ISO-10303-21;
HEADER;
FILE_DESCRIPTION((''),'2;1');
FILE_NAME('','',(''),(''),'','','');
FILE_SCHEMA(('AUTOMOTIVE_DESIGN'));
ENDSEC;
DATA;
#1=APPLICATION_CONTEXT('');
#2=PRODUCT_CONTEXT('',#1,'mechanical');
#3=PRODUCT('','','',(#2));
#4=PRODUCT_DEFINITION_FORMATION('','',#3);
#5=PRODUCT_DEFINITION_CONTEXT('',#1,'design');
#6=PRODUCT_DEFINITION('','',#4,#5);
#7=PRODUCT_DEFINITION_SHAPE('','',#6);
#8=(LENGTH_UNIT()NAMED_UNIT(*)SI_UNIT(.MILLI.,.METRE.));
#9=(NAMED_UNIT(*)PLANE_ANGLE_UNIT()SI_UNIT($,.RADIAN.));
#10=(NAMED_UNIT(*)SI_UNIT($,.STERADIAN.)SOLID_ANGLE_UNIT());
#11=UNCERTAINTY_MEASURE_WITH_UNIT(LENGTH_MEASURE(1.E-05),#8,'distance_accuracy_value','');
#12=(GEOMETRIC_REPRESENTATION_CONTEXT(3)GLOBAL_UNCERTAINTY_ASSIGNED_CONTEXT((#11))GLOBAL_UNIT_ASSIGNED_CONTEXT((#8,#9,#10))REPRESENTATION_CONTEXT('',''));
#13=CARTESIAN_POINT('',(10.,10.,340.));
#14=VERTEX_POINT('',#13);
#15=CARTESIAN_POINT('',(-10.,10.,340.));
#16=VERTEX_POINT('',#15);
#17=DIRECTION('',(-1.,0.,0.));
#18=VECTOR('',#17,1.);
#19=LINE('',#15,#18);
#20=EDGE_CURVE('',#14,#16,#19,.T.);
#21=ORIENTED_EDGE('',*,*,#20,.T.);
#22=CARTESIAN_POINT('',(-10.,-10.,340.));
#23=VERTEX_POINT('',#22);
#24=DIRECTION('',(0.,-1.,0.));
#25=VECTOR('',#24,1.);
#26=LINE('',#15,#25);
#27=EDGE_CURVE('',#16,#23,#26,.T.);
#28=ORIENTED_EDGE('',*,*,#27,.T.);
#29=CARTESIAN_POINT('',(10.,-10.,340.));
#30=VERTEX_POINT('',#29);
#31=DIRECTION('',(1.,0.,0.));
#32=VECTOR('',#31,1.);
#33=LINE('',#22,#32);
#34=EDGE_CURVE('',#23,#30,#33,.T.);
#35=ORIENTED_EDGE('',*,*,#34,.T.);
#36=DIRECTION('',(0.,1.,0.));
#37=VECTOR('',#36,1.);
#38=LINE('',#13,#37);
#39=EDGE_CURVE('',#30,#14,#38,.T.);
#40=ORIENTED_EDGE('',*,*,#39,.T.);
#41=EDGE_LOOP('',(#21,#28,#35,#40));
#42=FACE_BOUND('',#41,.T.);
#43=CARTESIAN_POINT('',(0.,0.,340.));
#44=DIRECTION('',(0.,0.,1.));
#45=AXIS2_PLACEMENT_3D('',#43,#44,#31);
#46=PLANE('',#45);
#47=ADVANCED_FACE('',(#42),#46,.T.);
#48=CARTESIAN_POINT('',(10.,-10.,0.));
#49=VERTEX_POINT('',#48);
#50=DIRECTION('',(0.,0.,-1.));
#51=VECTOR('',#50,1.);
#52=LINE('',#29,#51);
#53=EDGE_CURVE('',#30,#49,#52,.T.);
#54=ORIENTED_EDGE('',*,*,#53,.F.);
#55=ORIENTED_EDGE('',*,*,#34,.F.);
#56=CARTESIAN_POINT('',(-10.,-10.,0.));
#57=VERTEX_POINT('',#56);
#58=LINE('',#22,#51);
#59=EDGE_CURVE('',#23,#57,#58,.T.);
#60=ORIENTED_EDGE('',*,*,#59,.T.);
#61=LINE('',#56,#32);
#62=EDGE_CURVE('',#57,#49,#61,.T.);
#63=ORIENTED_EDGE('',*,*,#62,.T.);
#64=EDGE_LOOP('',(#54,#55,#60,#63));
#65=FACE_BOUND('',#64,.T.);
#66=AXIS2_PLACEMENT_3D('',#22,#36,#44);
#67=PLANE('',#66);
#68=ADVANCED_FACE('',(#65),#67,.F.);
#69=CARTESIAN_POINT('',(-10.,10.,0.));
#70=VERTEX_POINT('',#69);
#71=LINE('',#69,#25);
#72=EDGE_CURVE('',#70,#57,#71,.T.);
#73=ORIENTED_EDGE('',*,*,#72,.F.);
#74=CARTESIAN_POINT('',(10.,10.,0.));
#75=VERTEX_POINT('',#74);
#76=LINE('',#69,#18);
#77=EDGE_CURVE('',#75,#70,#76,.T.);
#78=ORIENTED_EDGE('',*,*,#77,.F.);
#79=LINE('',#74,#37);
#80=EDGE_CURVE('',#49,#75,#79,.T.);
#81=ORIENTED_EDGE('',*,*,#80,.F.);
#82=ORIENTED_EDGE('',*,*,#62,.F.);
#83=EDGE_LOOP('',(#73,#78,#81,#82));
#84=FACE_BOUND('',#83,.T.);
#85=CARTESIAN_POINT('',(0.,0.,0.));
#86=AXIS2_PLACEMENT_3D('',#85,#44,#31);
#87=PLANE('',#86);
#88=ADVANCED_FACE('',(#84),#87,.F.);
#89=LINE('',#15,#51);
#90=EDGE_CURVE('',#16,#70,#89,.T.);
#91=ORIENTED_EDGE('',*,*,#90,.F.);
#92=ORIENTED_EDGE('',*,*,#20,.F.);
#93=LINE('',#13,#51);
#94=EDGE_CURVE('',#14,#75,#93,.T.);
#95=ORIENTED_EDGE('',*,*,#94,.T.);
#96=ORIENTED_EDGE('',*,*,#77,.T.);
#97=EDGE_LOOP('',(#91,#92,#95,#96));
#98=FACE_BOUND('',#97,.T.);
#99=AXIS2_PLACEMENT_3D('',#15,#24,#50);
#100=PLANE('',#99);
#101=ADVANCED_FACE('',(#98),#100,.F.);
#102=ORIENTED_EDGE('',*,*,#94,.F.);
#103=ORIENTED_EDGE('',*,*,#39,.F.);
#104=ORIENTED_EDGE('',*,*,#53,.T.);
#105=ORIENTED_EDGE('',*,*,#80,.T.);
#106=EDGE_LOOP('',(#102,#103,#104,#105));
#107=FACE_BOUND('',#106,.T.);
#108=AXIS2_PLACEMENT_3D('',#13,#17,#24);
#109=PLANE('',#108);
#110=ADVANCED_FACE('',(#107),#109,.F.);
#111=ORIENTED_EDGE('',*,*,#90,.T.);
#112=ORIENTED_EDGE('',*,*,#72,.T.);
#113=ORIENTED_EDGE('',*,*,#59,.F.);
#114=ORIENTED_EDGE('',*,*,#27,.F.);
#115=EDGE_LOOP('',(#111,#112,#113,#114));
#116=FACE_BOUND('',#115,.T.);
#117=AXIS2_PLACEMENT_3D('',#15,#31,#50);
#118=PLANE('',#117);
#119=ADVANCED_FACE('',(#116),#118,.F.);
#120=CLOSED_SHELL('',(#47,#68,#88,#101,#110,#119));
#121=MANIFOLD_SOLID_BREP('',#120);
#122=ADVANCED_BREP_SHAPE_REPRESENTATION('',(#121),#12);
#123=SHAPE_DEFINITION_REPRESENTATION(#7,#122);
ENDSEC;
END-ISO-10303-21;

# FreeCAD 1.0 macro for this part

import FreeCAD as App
import Part
import Sketcher
from FreeCAD import Vector
Q = App.Units.Quantity


def add_polygon(sketch, points):
    """Adds a closed chain of lines whose ends are joined by coincident constraints."""
    first, n = sketch.GeometryCount, len(points)
    for a, b in zip(points, points[1:] + points[:1]):
        sketch.addGeometry(Part.LineSegment(App.Vector(*a, 0), App.Vector(*b, 0)), False)
    for i in range(n):
        sketch.addConstraint(Sketcher.Constraint("Coincident", first + i, 2, first + (i + 1) % n, 1))

doc = App.newDocument("Part")
params = doc.addObject("Spreadsheet::Sheet", "Params")
for row, (alias, value) in enumerate([
    ("sketch1_width", "20 mm"),
    ("pad1_length", "340 mm"),
], start=1):
    params.set(f"A{row}", alias)
    params.set(f"B{row}", "=" + value)
    params.setAlias(f"B{row}", alias)

body = doc.addObject("PartDesign::Body", "Body")

sketch1 = doc.addObject("Sketcher::SketchObject", "Sketch")
body.addObject(sketch1)
sketch1.AttachmentSupport = (doc.XY_Plane, [""])
sketch1.MapMode = "FlatFace"
add_polygon(sketch1, [(-10, 10), (-10, -10), (10, -10), (10, 10)])
sketch1.addConstraint([
    Sketcher.Constraint("Vertical", 0),
    Sketcher.Constraint("Horizontal", 1),
    Sketcher.Constraint("Vertical", 2),
    Sketcher.Constraint("Horizontal", 3),
    Sketcher.Constraint("Symmetric", 0, 2, 2, 2, -1, 1),
    Sketcher.Constraint("Equal", 3, 0),
    Sketcher.Constraint("DistanceX", 1, 1, 1, 2, Q("20 mm")),
])
sketch1.setExpression("Constraints[10]", "Params.sketch1_width")
pad1 = doc.addObject("PartDesign::Pad", "Pad")
body.addObject(pad1)
pad1.Profile = sketch1
pad1.setExpression("Length", "Params.pad1_length")

doc.recompute()
